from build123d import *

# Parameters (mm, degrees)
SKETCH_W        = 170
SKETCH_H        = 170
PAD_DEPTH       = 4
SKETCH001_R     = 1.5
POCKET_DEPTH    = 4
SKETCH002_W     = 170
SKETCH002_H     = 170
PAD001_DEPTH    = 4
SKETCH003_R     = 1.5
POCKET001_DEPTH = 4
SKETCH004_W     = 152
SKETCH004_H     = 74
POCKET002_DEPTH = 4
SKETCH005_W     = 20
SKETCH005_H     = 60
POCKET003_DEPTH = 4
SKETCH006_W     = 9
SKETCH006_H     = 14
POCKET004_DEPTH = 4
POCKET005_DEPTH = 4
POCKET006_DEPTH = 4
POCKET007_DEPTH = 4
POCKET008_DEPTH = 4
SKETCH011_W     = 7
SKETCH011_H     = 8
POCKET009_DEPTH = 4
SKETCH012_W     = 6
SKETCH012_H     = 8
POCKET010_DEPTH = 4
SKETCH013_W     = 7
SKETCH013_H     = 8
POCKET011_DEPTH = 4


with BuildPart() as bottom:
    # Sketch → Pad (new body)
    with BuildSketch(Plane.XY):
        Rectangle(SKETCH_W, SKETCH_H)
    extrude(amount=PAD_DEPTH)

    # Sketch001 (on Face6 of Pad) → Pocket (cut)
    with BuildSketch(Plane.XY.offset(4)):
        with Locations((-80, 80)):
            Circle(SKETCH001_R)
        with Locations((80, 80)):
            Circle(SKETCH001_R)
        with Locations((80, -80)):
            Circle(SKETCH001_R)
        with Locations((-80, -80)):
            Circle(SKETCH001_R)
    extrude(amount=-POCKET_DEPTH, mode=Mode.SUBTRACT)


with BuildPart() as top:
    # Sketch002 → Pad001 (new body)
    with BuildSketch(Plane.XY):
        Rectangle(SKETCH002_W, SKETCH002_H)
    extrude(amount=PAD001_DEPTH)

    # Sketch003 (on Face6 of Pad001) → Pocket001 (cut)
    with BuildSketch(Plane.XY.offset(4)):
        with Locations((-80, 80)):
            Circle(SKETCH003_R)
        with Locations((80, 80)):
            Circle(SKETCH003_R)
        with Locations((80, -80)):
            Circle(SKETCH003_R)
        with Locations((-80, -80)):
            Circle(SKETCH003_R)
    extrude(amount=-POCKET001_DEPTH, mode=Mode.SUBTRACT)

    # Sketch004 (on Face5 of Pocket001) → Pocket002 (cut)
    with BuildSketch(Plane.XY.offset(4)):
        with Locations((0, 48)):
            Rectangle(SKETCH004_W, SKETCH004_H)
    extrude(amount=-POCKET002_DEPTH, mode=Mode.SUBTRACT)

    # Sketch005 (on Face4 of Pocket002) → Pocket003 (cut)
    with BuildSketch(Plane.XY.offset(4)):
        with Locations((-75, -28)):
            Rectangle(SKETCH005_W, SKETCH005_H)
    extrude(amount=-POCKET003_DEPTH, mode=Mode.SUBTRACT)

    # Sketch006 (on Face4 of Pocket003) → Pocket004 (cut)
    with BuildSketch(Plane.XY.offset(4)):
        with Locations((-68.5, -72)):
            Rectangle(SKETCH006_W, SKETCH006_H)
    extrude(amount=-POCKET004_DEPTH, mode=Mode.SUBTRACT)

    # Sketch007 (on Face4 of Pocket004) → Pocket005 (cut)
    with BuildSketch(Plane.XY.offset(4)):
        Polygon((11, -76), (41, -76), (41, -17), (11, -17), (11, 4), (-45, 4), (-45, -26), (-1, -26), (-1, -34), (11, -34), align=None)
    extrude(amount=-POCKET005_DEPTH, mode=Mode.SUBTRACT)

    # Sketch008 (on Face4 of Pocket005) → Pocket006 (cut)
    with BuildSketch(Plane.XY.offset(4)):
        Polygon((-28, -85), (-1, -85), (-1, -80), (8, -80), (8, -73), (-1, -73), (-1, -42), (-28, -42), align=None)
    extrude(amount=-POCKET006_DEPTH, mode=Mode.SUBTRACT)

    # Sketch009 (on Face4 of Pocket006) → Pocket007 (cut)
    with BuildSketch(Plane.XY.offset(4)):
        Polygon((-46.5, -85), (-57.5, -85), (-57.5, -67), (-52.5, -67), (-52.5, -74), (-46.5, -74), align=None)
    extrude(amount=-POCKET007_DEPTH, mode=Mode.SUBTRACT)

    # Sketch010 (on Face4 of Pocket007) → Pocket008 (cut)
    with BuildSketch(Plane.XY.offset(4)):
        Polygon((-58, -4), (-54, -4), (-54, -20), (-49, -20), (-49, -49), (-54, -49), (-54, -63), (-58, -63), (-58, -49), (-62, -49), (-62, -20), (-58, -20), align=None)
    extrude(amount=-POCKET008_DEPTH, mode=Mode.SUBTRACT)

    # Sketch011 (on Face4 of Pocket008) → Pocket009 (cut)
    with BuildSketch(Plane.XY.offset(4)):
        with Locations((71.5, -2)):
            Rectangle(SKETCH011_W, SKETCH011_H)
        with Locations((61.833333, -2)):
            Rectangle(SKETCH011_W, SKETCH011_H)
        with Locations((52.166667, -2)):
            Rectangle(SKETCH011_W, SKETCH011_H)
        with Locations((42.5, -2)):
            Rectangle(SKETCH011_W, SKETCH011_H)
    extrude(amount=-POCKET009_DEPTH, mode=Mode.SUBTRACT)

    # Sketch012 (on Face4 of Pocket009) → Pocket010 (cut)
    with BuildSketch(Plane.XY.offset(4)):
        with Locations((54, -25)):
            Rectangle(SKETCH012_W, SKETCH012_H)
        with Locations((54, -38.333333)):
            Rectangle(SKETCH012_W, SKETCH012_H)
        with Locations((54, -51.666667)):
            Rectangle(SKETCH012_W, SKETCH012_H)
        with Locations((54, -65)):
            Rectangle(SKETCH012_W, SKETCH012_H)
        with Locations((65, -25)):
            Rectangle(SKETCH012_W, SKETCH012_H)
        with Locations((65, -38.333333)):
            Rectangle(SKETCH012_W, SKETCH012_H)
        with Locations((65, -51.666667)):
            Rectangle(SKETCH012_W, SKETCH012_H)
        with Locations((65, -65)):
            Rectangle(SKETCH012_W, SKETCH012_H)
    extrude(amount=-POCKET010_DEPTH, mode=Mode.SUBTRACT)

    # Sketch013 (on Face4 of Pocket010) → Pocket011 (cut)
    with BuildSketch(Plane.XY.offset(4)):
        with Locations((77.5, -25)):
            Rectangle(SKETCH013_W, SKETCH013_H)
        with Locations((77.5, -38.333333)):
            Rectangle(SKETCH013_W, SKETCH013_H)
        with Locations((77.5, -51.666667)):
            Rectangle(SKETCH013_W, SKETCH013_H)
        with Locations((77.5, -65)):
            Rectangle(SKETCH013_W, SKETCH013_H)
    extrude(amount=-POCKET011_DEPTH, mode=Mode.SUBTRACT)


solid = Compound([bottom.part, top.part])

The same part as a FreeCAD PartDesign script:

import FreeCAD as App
import Part
import Sketcher


def add_polygon(sketch, points):
    """Adds a closed chain of lines whose ends are joined by coincident constraints."""
    first, n = sketch.GeometryCount, len(points)
    for a, b in zip(points, points[1:] + points[:1]):
        sketch.addGeometry(Part.LineSegment(App.Vector(*a, 0), App.Vector(*b, 0)), False)
    for i in range(n):
        sketch.addConstraint(Sketcher.Constraint("Coincident", first + i, 2, first + (i + 1) % n, 1))

doc = App.newDocument("Part")
body = doc.addObject("PartDesign::Body", "Body")

sketch1 = body.newObject("Sketcher::SketchObject", "Sketch")
sketch1.AttachmentSupport = (doc.getObject("XY_Plane"), [""])
sketch1.MapMode = "FlatFace"
add_polygon(sketch1, [(-85, 85), (-85, -85), (85, -85), (85, 85)])
sketch1.addConstraint(Sketcher.Constraint("Vertical", 0))
sketch1.addConstraint(Sketcher.Constraint("Horizontal", 1))
sketch1.addConstraint(Sketcher.Constraint("Vertical", 2))
sketch1.addConstraint(Sketcher.Constraint("Horizontal", 3))
sketch1.addConstraint(Sketcher.Constraint("Symmetric", 0, 2, 2, 2, -1, 1))
sketch1.addConstraint(Sketcher.Constraint("Equal", 3, 0))
sketch1.addConstraint(Sketcher.Constraint("DistanceX", 1, 1, 1, 2, 170.0))
pad1 = body.newObject("PartDesign::Pad", "Pad")
pad1.Profile = sketch1
pad1.Length = 4

sketch2 = body.newObject("Sketcher::SketchObject", "Sketch001")
sketch2.AttachmentSupport = (doc.getObject("XY_Plane"), [""])
sketch2.MapMode = "FlatFace"
sketch2.AttachmentOffset = App.Placement(App.Vector(0, 0, 4), App.Rotation())
sketch2.addGeometry(Part.Circle(App.Vector(-80, 80, 0), App.Vector(0, 0, 1), 1.5), False)
sketch2.addGeometry(Part.Circle(App.Vector(80, 80, 0), App.Vector(0, 0, 1), 1.5), False)
sketch2.addGeometry(Part.Circle(App.Vector(80, -80, 0), App.Vector(0, 0, 1), 1.5), False)
sketch2.addGeometry(Part.Circle(App.Vector(-80, -80, 0), App.Vector(0, 0, 1), 1.5), False)
sketch2.addConstraint(Sketcher.Constraint("Equal", 0, 1))
sketch2.addConstraint(Sketcher.Constraint("Equal", 1, 2))
sketch2.addConstraint(Sketcher.Constraint("Equal", 2, 3))
sketch2.addConstraint(Sketcher.Constraint("Symmetric", 0, 3, 2, 3, -1, 1))
sketch2.addConstraint(Sketcher.Constraint("Symmetric", 1, 3, 3, 3, -1, 1))
sketch2.addConstraint(Sketcher.Constraint("Symmetric", 0, 3, 1, 3, -2))
sketch2.addConstraint(Sketcher.Constraint("Diameter", 0, 3.0))
sketch2.addConstraint(Sketcher.Constraint("DistanceX", 0, 3, -1, 1, 80.0))
sketch2.addConstraint(Sketcher.Constraint("DistanceY", -1, 1, 0, 3, 80.0))
pocket1 = body.newObject("PartDesign::Pocket", "Pocket")
pocket1.Profile = sketch2
pocket1.Length = 4
body2 = doc.addObject("PartDesign::Body", "Body001")

sketch3 = body2.newObject("Sketcher::SketchObject", "Sketch002")
sketch3.AttachmentSupport = (doc.getObject("XY_Plane001"), [""])
sketch3.MapMode = "FlatFace"
add_polygon(sketch3, [(-85, 85), (-85, -85), (85, -85), (85, 85)])
sketch3.addConstraint(Sketcher.Constraint("Vertical", 0))
sketch3.addConstraint(Sketcher.Constraint("Horizontal", 1))
sketch3.addConstraint(Sketcher.Constraint("Vertical", 2))
sketch3.addConstraint(Sketcher.Constraint("Horizontal", 3))
sketch3.addConstraint(Sketcher.Constraint("Symmetric", 0, 2, 2, 2, -1, 1))
sketch3.addConstraint(Sketcher.Constraint("Equal", 3, 0))
sketch3.addConstraint(Sketcher.Constraint("DistanceX", 1, 1, 1, 2, 170.0))
pad2 = body2.newObject("PartDesign::Pad", "Pad001")
pad2.Profile = sketch3
pad2.Length = 4

sketch4 = body2.newObject("Sketcher::SketchObject", "Sketch003")
sketch4.AttachmentSupport = (doc.getObject("XY_Plane001"), [""])
sketch4.MapMode = "FlatFace"
sketch4.AttachmentOffset = App.Placement(App.Vector(0, 0, 4), App.Rotation())
sketch4.addGeometry(Part.Circle(App.Vector(-80, 80, 0), App.Vector(0, 0, 1), 1.5), False)
sketch4.addGeometry(Part.Circle(App.Vector(80, 80, 0), App.Vector(0, 0, 1), 1.5), False)
sketch4.addGeometry(Part.Circle(App.Vector(80, -80, 0), App.Vector(0, 0, 1), 1.5), False)
sketch4.addGeometry(Part.Circle(App.Vector(-80, -80, 0), App.Vector(0, 0, 1), 1.5), False)
sketch4.addConstraint(Sketcher.Constraint("Equal", 0, 1))
sketch4.addConstraint(Sketcher.Constraint("Equal", 1, 2))
sketch4.addConstraint(Sketcher.Constraint("Equal", 2, 3))
sketch4.addConstraint(Sketcher.Constraint("Symmetric", 0, 3, 2, 3, -1, 1))
sketch4.addConstraint(Sketcher.Constraint("Symmetric", 1, 3, 3, 3, -1, 1))
sketch4.addConstraint(Sketcher.Constraint("Symmetric", 0, 3, 1, 3, -2))
sketch4.addConstraint(Sketcher.Constraint("Diameter", 0, 3.0))
sketch4.addConstraint(Sketcher.Constraint("DistanceX", 0, 3, -1, 1, 80.0))
sketch4.addConstraint(Sketcher.Constraint("DistanceY", -1, 1, 0, 3, 80.0))
pocket2 = body2.newObject("PartDesign::Pocket", "Pocket001")
pocket2.Profile = sketch4
pocket2.Length = 4

sketch5 = body2.newObject("Sketcher::SketchObject", "Sketch004")
sketch5.AttachmentSupport = (doc.getObject("XY_Plane001"), [""])
sketch5.MapMode = "FlatFace"
sketch5.AttachmentOffset = App.Placement(App.Vector(0, 0, 4), App.Rotation())
add_polygon(sketch5, [(-76, 85), (-76, 11), (76, 11), (76, 85)])
sketch5.addConstraint(Sketcher.Constraint("Vertical", 0))
sketch5.addConstraint(Sketcher.Constraint("Horizontal", 1))
sketch5.addConstraint(Sketcher.Constraint("Vertical", 2))
sketch5.addConstraint(Sketcher.Constraint("Horizontal", 3))
sketch5.addConstraint(Sketcher.Constraint("DistanceX", 1, 1, 1, 2, 152.0))
sketch5.addConstraint(Sketcher.Constraint("DistanceY", 0, 2, 0, 1, 74.0))
sketch5.addConstraint(Sketcher.Constraint("DistanceX", 0, 2, -1, 1, 76.0))
sketch5.addConstraint(Sketcher.Constraint("DistanceY", -1, 1, 0, 2, 11.0))
pocket3 = body2.newObject("PartDesign::Pocket", "Pocket002")
pocket3.Profile = sketch5
pocket3.Length = 4

sketch6 = body2.newObject("Sketcher::SketchObject", "Sketch005")
sketch6.AttachmentSupport = (doc.getObject("XY_Plane001"), [""])
sketch6.MapMode = "FlatFace"
sketch6.AttachmentOffset = App.Placement(App.Vector(0, 0, 4), App.Rotation())
add_polygon(sketch6, [(-85, 2), (-85, -58), (-65, -58), (-65, 2)])
sketch6.addConstraint(Sketcher.Constraint("Vertical", 0))
sketch6.addConstraint(Sketcher.Constraint("Horizontal", 1))
sketch6.addConstraint(Sketcher.Constraint("Vertical", 2))
sketch6.addConstraint(Sketcher.Constraint("Horizontal", 3))
sketch6.addConstraint(Sketcher.Constraint("DistanceX", 1, 1, 1, 2, 20.0))
sketch6.addConstraint(Sketcher.Constraint("DistanceY", 0, 2, 0, 1, 60.0))
sketch6.addConstraint(Sketcher.Constraint("DistanceX", 0, 2, -1, 1, 85.0))
sketch6.addConstraint(Sketcher.Constraint("DistanceY", 0, 2, -1, 1, 58.0))
pocket4 = body2.newObject("PartDesign::Pocket", "Pocket003")
pocket4.Profile = sketch6
pocket4.Length = 4

sketch7 = body2.newObject("Sketcher::SketchObject", "Sketch006")
sketch7.AttachmentSupport = (doc.getObject("XY_Plane001"), [""])
sketch7.MapMode = "FlatFace"
sketch7.AttachmentOffset = App.Placement(App.Vector(0, 0, 4), App.Rotation())
add_polygon(sketch7, [(-73, -65), (-73, -79), (-64, -79), (-64, -65)])
sketch7.addConstraint(Sketcher.Constraint("Vertical", 0))
sketch7.addConstraint(Sketcher.Constraint("Horizontal", 1))
sketch7.addConstraint(Sketcher.Constraint("Vertical", 2))
sketch7.addConstraint(Sketcher.Constraint("Horizontal", 3))
sketch7.addConstraint(Sketcher.Constraint("DistanceX", 1, 1, 1, 2, 9.0))
sketch7.addConstraint(Sketcher.Constraint("DistanceY", 0, 2, 0, 1, 14.0))
sketch7.addConstraint(Sketcher.Constraint("DistanceX", 0, 2, -1, 1, 73.0))
sketch7.addConstraint(Sketcher.Constraint("DistanceY", 0, 2, -1, 1, 79.0))
pocket5 = body2.newObject("PartDesign::Pocket", "Pocket004")
pocket5.Profile = sketch7
pocket5.Length = 4

sketch8 = body2.newObject("Sketcher::SketchObject", "Sketch007")
sketch8.AttachmentSupport = (doc.getObject("XY_Plane001"), [""])
sketch8.MapMode = "FlatFace"
sketch8.AttachmentOffset = App.Placement(App.Vector(0, 0, 4), App.Rotation())
add_polygon(sketch8, [(11, -76), (41, -76), (41, -17), (11, -17), (11, 4), (-45, 4), (-45, -26), (-1, -26), (-1, -34), (11, -34)])
sketch8.addConstraint(Sketcher.Constraint("Horizontal", 0))
sketch8.addConstraint(Sketcher.Constraint("Vertical", 1))
sketch8.addConstraint(Sketcher.Constraint("Horizontal", 2))
sketch8.addConstraint(Sketcher.Constraint("Vertical", 3))
sketch8.addConstraint(Sketcher.Constraint("Horizontal", 4))
sketch8.addConstraint(Sketcher.Constraint("Vertical", 5))
sketch8.addConstraint(Sketcher.Constraint("Horizontal", 6))
sketch8.addConstraint(Sketcher.Constraint("Vertical", 7))
sketch8.addConstraint(Sketcher.Constraint("Horizontal", 8))
sketch8.addConstraint(Sketcher.Constraint("Vertical", 9))
sketch8.addConstraint(Sketcher.Constraint("Vertical", 3, 2, 8, 2))
sketch8.addConstraint(Sketcher.Constraint("Equal", 2, 5))
sketch8.addConstraint(Sketcher.Constraint("DistanceX", 0, 1, 0, 2, 30.0))
sketch8.addConstraint(Sketcher.Constraint("DistanceX", 4, 2, 4, 1, 56.0))
sketch8.addConstraint(Sketcher.Constraint("DistanceX", 6, 1, 6, 2, 44.0))
sketch8.addConstraint(Sketcher.Constraint("DistanceY", 1, 1, 1, 2, 59.0))
sketch8.addConstraint(Sketcher.Constraint("DistanceY", 3, 1, 3, 2, 21.0))
sketch8.addConstraint(Sketcher.Constraint("DistanceY", 7, 2, 7, 1, 8.0))
sketch8.addConstraint(Sketcher.Constraint("DistanceX", -1, 1, 0, 2, 41.0))
sketch8.addConstraint(Sketcher.Constraint("DistanceY", 0, 2, -1, 1, 76.0))
pocket6 = body2.newObject("PartDesign::Pocket", "Pocket005")
pocket6.Profile = sketch8
pocket6.Length = 4

sketch9 = body2.newObject("Sketcher::SketchObject", "Sketch008")
sketch9.AttachmentSupport = (doc.getObject("XY_Plane001"), [""])
sketch9.MapMode = "FlatFace"
sketch9.AttachmentOffset = App.Placement(App.Vector(0, 0, 4), App.Rotation())
add_polygon(sketch9, [(-28, -85), (-1, -85), (-1, -80), (8, -80), (8, -73), (-1, -73), (-1, -42), (-28, -42)])
sketch9.addConstraint(Sketcher.Constraint("Horizontal", 0))
sketch9.addConstraint(Sketcher.Constraint("Vertical", 1))
sketch9.addConstraint(Sketcher.Constraint("Horizontal", 2))
sketch9.addConstraint(Sketcher.Constraint("Vertical", 3))
sketch9.addConstraint(Sketcher.Constraint("Horizontal", 4))
sketch9.addConstraint(Sketcher.Constraint("Vertical", 5))
sketch9.addConstraint(Sketcher.Constraint("Horizontal", 6))
sketch9.addConstraint(Sketcher.Constraint("Vertical", 7))
sketch9.addConstraint(Sketcher.Constraint("Vertical", 1, 2, 4, 2))
sketch9.addConstraint(Sketcher.Constraint("DistanceX", 0, 1, 0, 2, 27.0))
sketch9.addConstraint(Sketcher.Constraint("DistanceX", 2, 1, 2, 2, 9.0))
sketch9.addConstraint(Sketcher.Constraint("DistanceY", 1, 1, 1, 2, 5.0))
sketch9.addConstraint(Sketcher.Constraint("DistanceY", 3, 1, 3, 2, 7.0))
sketch9.addConstraint(Sketcher.Constraint("DistanceY", 5, 1, 5, 2, 31.0))
sketch9.addConstraint(Sketcher.Constraint("DistanceX", 0, 2, -1, 1, 1.0))
sketch9.addConstraint(Sketcher.Constraint("DistanceY", 0, 2, -1, 1, 85.0))
pocket7 = body2.newObject("PartDesign::Pocket", "Pocket006")
pocket7.Profile = sketch9
pocket7.Length = 4

sketch10 = body2.newObject("Sketcher::SketchObject", "Sketch009")
sketch10.AttachmentSupport = (doc.getObject("XY_Plane001"), [""])
sketch10.MapMode = "FlatFace"
sketch10.AttachmentOffset = App.Placement(App.Vector(0, 0, 4), App.Rotation())
add_polygon(sketch10, [(-58, -85), (-46, -85), (-46, -74), (-52, -74), (-52, -67), (-58, -67)])
sketch10.addConstraint(Sketcher.Constraint("Horizontal", 0))
sketch10.addConstraint(Sketcher.Constraint("Vertical", 1))
sketch10.addConstraint(Sketcher.Constraint("Horizontal", 2))
sketch10.addConstraint(Sketcher.Constraint("Vertical", 3))
sketch10.addConstraint(Sketcher.Constraint("Horizontal", 4))
sketch10.addConstraint(Sketcher.Constraint("Vertical", 5))
sketch10.addConstraint(Sketcher.Constraint("Equal", 0, 1))
sketch10.addConstraint(Sketcher.Constraint("DistanceX", 0, 1, 0, 2, 11.0))
sketch10.addConstraint(Sketcher.Constraint("DistanceX", 2, 2, 2, 1, 6.0))
sketch10.addConstraint(Sketcher.Constraint("DistanceY", 3, 1, 3, 2, 7.0))
sketch10.addConstraint(Sketcher.Constraint("DistanceY", 0, 2, -1, 1, 85.0))
sketch10.addConstraint(Sketcher.Constraint("DistanceX", 0, 2, -1, 1, 46.5))
pocket8 = body2.newObject("PartDesign::Pocket", "Pocket007")
pocket8.Profile = sketch10
pocket8.Length = 4

sketch11 = body2.newObject("Sketcher::SketchObject", "Sketch010")
sketch11.AttachmentSupport = (doc.getObject("XY_Plane001"), [""])
sketch11.MapMode = "FlatFace"
sketch11.AttachmentOffset = App.Placement(App.Vector(0, 0, 4), App.Rotation())
add_polygon(sketch11, [(-54, -4), (-58, -4), (-58, -20), (-62, -20), (-62, -49), (-58, -49), (-58, -63), (-54, -63), (-54, -49), (-49, -49), (-49, -20), (-54, -20)])
sketch11.addConstraint(Sketcher.Constraint("Horizontal", 0))
sketch11.addConstraint(Sketcher.Constraint("Vertical", 1))
sketch11.addConstraint(Sketcher.Constraint("Horizontal", 2))
sketch11.addConstraint(Sketcher.Constraint("Vertical", 3))
sketch11.addConstraint(Sketcher.Constraint("Horizontal", 4))
sketch11.addConstraint(Sketcher.Constraint("Vertical", 5))
sketch11.addConstraint(Sketcher.Constraint("Horizontal", 6))
sketch11.addConstraint(Sketcher.Constraint("Vertical", 7))
sketch11.addConstraint(Sketcher.Constraint("Horizontal", 8))
sketch11.addConstraint(Sketcher.Constraint("Vertical", 9))
sketch11.addConstraint(Sketcher.Constraint("Horizontal", 10))
sketch11.addConstraint(Sketcher.Constraint("Vertical", 11))
sketch11.addConstraint(Sketcher.Constraint("Horizontal", 4, 2, 7, 2))
sketch11.addConstraint(Sketcher.Constraint("Horizontal", 2, 2, 9, 2))
sketch11.addConstraint(Sketcher.Constraint("Vertical", 1, 2, 4, 2))
sketch11.addConstraint(Sketcher.Constraint("Vertical", 7, 2, 10, 2))
sketch11.addConstraint(Sketcher.Constraint("Equal", 0, 2))
sketch11.addConstraint(Sketcher.Constraint("DistanceX", 0, 2, 0, 1, 4.0))
sketch11.addConstraint(Sketcher.Constraint("DistanceX", 8, 1, 8, 2, 5.0))
sketch11.addConstraint(Sketcher.Constraint("DistanceY", 1, 2, 1, 1, 16.0))
sketch11.addConstraint(Sketcher.Constraint("DistanceY", 3, 2, 3, 1, 29.0))
sketch11.addConstraint(Sketcher.Constraint("DistanceY", 5, 2, 5, 1, 14.0))
sketch11.addConstraint(Sketcher.Constraint("DistanceX", 0, 2, -1, 1, 58.0))
sketch11.addConstraint(Sketcher.Constraint("DistanceY", 0, 2, -1, 1, 4.0))
pocket9 = body2.newObject("PartDesign::Pocket", "Pocket008")
pocket9.Profile = sketch11
pocket9.Length = 4

sketch12 = body2.newObject("Sketcher::SketchObject", "Sketch011")
sketch12.AttachmentSupport = (doc.getObject("XY_Plane001"), [""])
sketch12.MapMode = "FlatFace"
sketch12.AttachmentOffset = App.Placement(App.Vector(0, 0, 4), App.Rotation())
add_polygon(sketch12, [(68, 2), (68, -6), (75, -6), (75, 2)])
add_polygon(sketch12, [(58, 2), (58, -6), (65, -6), (65, 2)])
add_polygon(sketch12, [(49, 2), (49, -6), (56, -6), (56, 2)])
add_polygon(sketch12, [(39, 2), (39, -6), (46, -6), (46, 2)])
sketch12.addConstraint(Sketcher.Constraint("Vertical", 0))
sketch12.addConstraint(Sketcher.Constraint("Horizontal", 1))
sketch12.addConstraint(Sketcher.Constraint("Vertical", 2))
sketch12.addConstraint(Sketcher.Constraint("Horizontal", 3))
sketch12.addConstraint(Sketcher.Constraint("Vertical", 4))
sketch12.addConstraint(Sketcher.Constraint("Horizontal", 5))
sketch12.addConstraint(Sketcher.Constraint("Vertical", 6))
sketch12.addConstraint(Sketcher.Constraint("Horizontal", 7))
sketch12.addConstraint(Sketcher.Constraint("Vertical", 8))
sketch12.addConstraint(Sketcher.Constraint("Horizontal", 9))
sketch12.addConstraint(Sketcher.Constraint("Vertical", 10))
sketch12.addConstraint(Sketcher.Constraint("Horizontal", 11))
sketch12.addConstraint(Sketcher.Constraint("Vertical", 12))
sketch12.addConstraint(Sketcher.Constraint("Horizontal", 13))
sketch12.addConstraint(Sketcher.Constraint("Vertical", 14))
sketch12.addConstraint(Sketcher.Constraint("Horizontal", 15))
sketch12.addConstraint(Sketcher.Constraint("Horizontal", 1, 2, 4, 2))
sketch12.addConstraint(Sketcher.Constraint("Horizontal", 3, 2, 6, 2))
sketch12.addConstraint(Sketcher.Constraint("Horizontal", 5, 2, 8, 2))
sketch12.addConstraint(Sketcher.Constraint("Horizontal", 7, 2, 10, 2))
sketch12.addConstraint(Sketcher.Constraint("Horizontal", 9, 2, 12, 2))
sketch12.addConstraint(Sketcher.Constraint("Horizontal", 11, 2, 14, 2))
sketch12.addConstraint(Sketcher.Constraint("Equal", 3, 5))
sketch12.addConstraint(Sketcher.Constraint("Equal", 7, 9))
sketch12.addConstraint(Sketcher.Constraint("Equal", 11, 13))
sketch12.addConstraint(Sketcher.Constraint("DistanceX", 1, 1, 1, 2, 7.0))
sketch12.addConstraint(Sketcher.Constraint("DistanceY", 0, 2, 0, 1, 8.0))
sketch12.addConstraint(Sketcher.Constraint("DistanceX", -1, 1, 0, 2, 68.0))
sketch12.addConstraint(Sketcher.Constraint("DistanceY", 0, 2, -1, 1, 6.0))
sketch12.addConstraint(Sketcher.Constraint("DistanceX", -1, 1, 12, 2, 39.0))
sketch12.addConstraint(Sketcher.Constraint("DistanceX", -1, 1, 4, 2, 58.333333))
sketch12.addConstraint(Sketcher.Constraint("DistanceX", -1, 1, 8, 2, 48.666667))
pocket10 = body2.newObject("PartDesign::Pocket", "Pocket009")
pocket10.Profile = sketch12
pocket10.Length = 4

sketch13 = body2.newObject("Sketcher::SketchObject", "Sketch012")
sketch13.AttachmentSupport = (doc.getObject("XY_Plane001"), [""])
sketch13.MapMode = "FlatFace"
sketch13.AttachmentOffset = App.Placement(App.Vector(0, 0, 4), App.Rotation())
add_polygon(sketch13, [(51, -21), (51, -29), (57, -29), (57, -21)])
add_polygon(sketch13, [(51, -34), (51, -42), (57, -42), (57, -34)])
add_polygon(sketch13, [(51, -48), (51, -56), (57, -56), (57, -48)])
add_polygon(sketch13, [(51, -61), (51, -69), (57, -69), (57, -61)])
add_polygon(sketch13, [(62, -21), (62, -29), (68, -29), (68, -21)])
add_polygon(sketch13, [(62, -34), (62, -42), (68, -42), (68, -34)])
add_polygon(sketch13, [(62, -48), (62, -56), (68, -56), (68, -48)])
add_polygon(sketch13, [(62, -61), (62, -69), (68, -69), (68, -61)])
sketch13.addConstraint(Sketcher.Constraint("Vertical", 0))
sketch13.addConstraint(Sketcher.Constraint("Horizontal", 1))
sketch13.addConstraint(Sketcher.Constraint("Vertical", 2))
sketch13.addConstraint(Sketcher.Constraint("Horizontal", 3))
sketch13.addConstraint(Sketcher.Constraint("Vertical", 4))
sketch13.addConstraint(Sketcher.Constraint("Horizontal", 5))
sketch13.addConstraint(Sketcher.Constraint("Vertical", 6))
sketch13.addConstraint(Sketcher.Constraint("Horizontal", 7))
sketch13.addConstraint(Sketcher.Constraint("Vertical", 8))
sketch13.addConstraint(Sketcher.Constraint("Horizontal", 9))
sketch13.addConstraint(Sketcher.Constraint("Vertical", 10))
sketch13.addConstraint(Sketcher.Constraint("Horizontal", 11))
sketch13.addConstraint(Sketcher.Constraint("Vertical", 12))
sketch13.addConstraint(Sketcher.Constraint("Horizontal", 13))
sketch13.addConstraint(Sketcher.Constraint("Vertical", 14))
sketch13.addConstraint(Sketcher.Constraint("Horizontal", 15))
sketch13.addConstraint(Sketcher.Constraint("Vertical", 16))
sketch13.addConstraint(Sketcher.Constraint("Horizontal", 17))
sketch13.addConstraint(Sketcher.Constraint("Vertical", 18))
sketch13.addConstraint(Sketcher.Constraint("Horizontal", 19))
sketch13.addConstraint(Sketcher.Constraint("Vertical", 20))
sketch13.addConstraint(Sketcher.Constraint("Horizontal", 21))
sketch13.addConstraint(Sketcher.Constraint("Vertical", 22))
sketch13.addConstraint(Sketcher.Constraint("Horizontal", 23))
sketch13.addConstraint(Sketcher.Constraint("Vertical", 24))
sketch13.addConstraint(Sketcher.Constraint("Horizontal", 25))
sketch13.addConstraint(Sketcher.Constraint("Vertical", 26))
sketch13.addConstraint(Sketcher.Constraint("Horizontal", 27))
sketch13.addConstraint(Sketcher.Constraint("Vertical", 28))
sketch13.addConstraint(Sketcher.Constraint("Horizontal", 29))
sketch13.addConstraint(Sketcher.Constraint("Vertical", 30))
sketch13.addConstraint(Sketcher.Constraint("Horizontal", 31))
sketch13.addConstraint(Sketcher.Constraint("Horizontal", 1, 2, 16, 2))
sketch13.addConstraint(Sketcher.Constraint("Horizontal", 3, 2, 18, 2))
sketch13.addConstraint(Sketcher.Constraint("Horizontal", 5, 2, 20, 2))
sketch13.addConstraint(Sketcher.Constraint("Horizontal", 7, 2, 22, 2))
sketch13.addConstraint(Sketcher.Constraint("Horizontal", 9, 2, 24, 2))
sketch13.addConstraint(Sketcher.Constraint("Horizontal", 11, 2, 26, 2))
sketch13.addConstraint(Sketcher.Constraint("Horizontal", 13, 2, 28, 2))
sketch13.addConstraint(Sketcher.Constraint("Horizontal", 15, 2, 30, 2))
sketch13.addConstraint(Sketcher.Constraint("Vertical", 3, 2, 4, 2))
sketch13.addConstraint(Sketcher.Constraint("Vertical", 2, 2, 5, 2))
sketch13.addConstraint(Sketcher.Constraint("Vertical", 7, 2, 8, 2))
sketch13.addConstraint(Sketcher.Constraint("Vertical", 6, 2, 9, 2))
sketch13.addConstraint(Sketcher.Constraint("Vertical", 11, 2, 12, 2))
sketch13.addConstraint(Sketcher.Constraint("Vertical", 10, 2, 13, 2))
sketch13.addConstraint(Sketcher.Constraint("Vertical", 19, 2, 20, 2))
sketch13.addConstraint(Sketcher.Constraint("Vertical", 18, 2, 21, 2))
sketch13.addConstraint(Sketcher.Constraint("Vertical", 23, 2, 24, 2))
sketch13.addConstraint(Sketcher.Constraint("Vertical", 22, 2, 25, 2))
sketch13.addConstraint(Sketcher.Constraint("Vertical", 27, 2, 28, 2))
sketch13.addConstraint(Sketcher.Constraint("Vertical", 26, 2, 29, 2))
sketch13.addConstraint(Sketcher.Constraint("Equal", 15, 17))
sketch13.addConstraint(Sketcher.Constraint("Equal", 2, 4))
sketch13.addConstraint(Sketcher.Constraint("Equal", 6, 8))
sketch13.addConstraint(Sketcher.Constraint("Equal", 10, 12))
sketch13.addConstraint(Sketcher.Constraint("DistanceX", 1, 1, 1, 2, 6.0))
sketch13.addConstraint(Sketcher.Constraint("DistanceY", 0, 2, 0, 1, 8.0))
sketch13.addConstraint(Sketcher.Constraint("DistanceX", -1, 1, 0, 2, 51.0))
sketch13.addConstraint(Sketcher.Constraint("DistanceY", 0, 2, -1, 1, 29.0))
sketch13.addConstraint(Sketcher.Constraint("DistanceY", 12, 2, -1, 1, 69.0))
sketch13.addConstraint(Sketcher.Constraint("DistanceX", -1, 1, 16, 2, 62.0))
sketch13.addConstraint(Sketcher.Constraint("DistanceY", 4, 2, -1, 1, 42.333333))
sketch13.addConstraint(Sketcher.Constraint("DistanceY", 8, 2, -1, 1, 55.666667))
pocket11 = body2.newObject("PartDesign::Pocket", "Pocket010")
pocket11.Profile = sketch13
pocket11.Length = 4

sketch14 = body2.newObject("Sketcher::SketchObject", "Sketch013")
sketch14.AttachmentSupport = (doc.getObject("XY_Plane001"), [""])
sketch14.MapMode = "FlatFace"
sketch14.AttachmentOffset = App.Placement(App.Vector(0, 0, 4), App.Rotation())
add_polygon(sketch14, [(74, -21), (74, -29), (81, -29), (81, -21)])
add_polygon(sketch14, [(74, -34), (74, -42), (81, -42), (81, -34)])
add_polygon(sketch14, [(74, -48), (74, -56), (81, -56), (81, -48)])
add_polygon(sketch14, [(74, -61), (74, -69), (81, -69), (81, -61)])
sketch14.addConstraint(Sketcher.Constraint("Vertical", 0))
sketch14.addConstraint(Sketcher.Constraint("Horizontal", 1))
sketch14.addConstraint(Sketcher.Constraint("Vertical", 2))
sketch14.addConstraint(Sketcher.Constraint("Horizontal", 3))
sketch14.addConstraint(Sketcher.Constraint("Vertical", 4))
sketch14.addConstraint(Sketcher.Constraint("Horizontal", 5))
sketch14.addConstraint(Sketcher.Constraint("Vertical", 6))
sketch14.addConstraint(Sketcher.Constraint("Horizontal", 7))
sketch14.addConstraint(Sketcher.Constraint("Vertical", 8))
sketch14.addConstraint(Sketcher.Constraint("Horizontal", 9))
sketch14.addConstraint(Sketcher.Constraint("Vertical", 10))
sketch14.addConstraint(Sketcher.Constraint("Horizontal", 11))
sketch14.addConstraint(Sketcher.Constraint("Vertical", 12))
sketch14.addConstraint(Sketcher.Constraint("Horizontal", 13))
sketch14.addConstraint(Sketcher.Constraint("Vertical", 14))
sketch14.addConstraint(Sketcher.Constraint("Horizontal", 15))
sketch14.addConstraint(Sketcher.Constraint("Vertical", 3, 2, 4, 2))
sketch14.addConstraint(Sketcher.Constraint("Vertical", 2, 2, 5, 2))
sketch14.addConstraint(Sketcher.Constraint("Vertical", 7, 2, 8, 2))
sketch14.addConstraint(Sketcher.Constraint("Vertical", 6, 2, 9, 2))
sketch14.addConstraint(Sketcher.Constraint("Vertical", 11, 2, 12, 2))
sketch14.addConstraint(Sketcher.Constraint("Vertical", 10, 2, 13, 2))
sketch14.addConstraint(Sketcher.Constraint("Equal", 2, 4))
sketch14.addConstraint(Sketcher.Constraint("Equal", 6, 8))
sketch14.addConstraint(Sketcher.Constraint("Equal", 10, 12))
sketch14.addConstraint(Sketcher.Constraint("DistanceX", 1, 1, 1, 2, 7.0))
sketch14.addConstraint(Sketcher.Constraint("DistanceY", 0, 2, 0, 1, 8.0))
sketch14.addConstraint(Sketcher.Constraint("DistanceX", -1, 1, 0, 2, 74.0))
sketch14.addConstraint(Sketcher.Constraint("DistanceY", 0, 2, -1, 1, 29.0))
sketch14.addConstraint(Sketcher.Constraint("DistanceY", 12, 2, -1, 1, 69.0))
sketch14.addConstraint(Sketcher.Constraint("DistanceY", 4, 2, -1, 1, 42.333333))
sketch14.addConstraint(Sketcher.Constraint("DistanceY", 8, 2, -1, 1, 55.666667))
pocket12 = body2.newObject("PartDesign::Pocket", "Pocket011")
pocket12.Profile = sketch14
pocket12.Length = 4

doc.recompute()
